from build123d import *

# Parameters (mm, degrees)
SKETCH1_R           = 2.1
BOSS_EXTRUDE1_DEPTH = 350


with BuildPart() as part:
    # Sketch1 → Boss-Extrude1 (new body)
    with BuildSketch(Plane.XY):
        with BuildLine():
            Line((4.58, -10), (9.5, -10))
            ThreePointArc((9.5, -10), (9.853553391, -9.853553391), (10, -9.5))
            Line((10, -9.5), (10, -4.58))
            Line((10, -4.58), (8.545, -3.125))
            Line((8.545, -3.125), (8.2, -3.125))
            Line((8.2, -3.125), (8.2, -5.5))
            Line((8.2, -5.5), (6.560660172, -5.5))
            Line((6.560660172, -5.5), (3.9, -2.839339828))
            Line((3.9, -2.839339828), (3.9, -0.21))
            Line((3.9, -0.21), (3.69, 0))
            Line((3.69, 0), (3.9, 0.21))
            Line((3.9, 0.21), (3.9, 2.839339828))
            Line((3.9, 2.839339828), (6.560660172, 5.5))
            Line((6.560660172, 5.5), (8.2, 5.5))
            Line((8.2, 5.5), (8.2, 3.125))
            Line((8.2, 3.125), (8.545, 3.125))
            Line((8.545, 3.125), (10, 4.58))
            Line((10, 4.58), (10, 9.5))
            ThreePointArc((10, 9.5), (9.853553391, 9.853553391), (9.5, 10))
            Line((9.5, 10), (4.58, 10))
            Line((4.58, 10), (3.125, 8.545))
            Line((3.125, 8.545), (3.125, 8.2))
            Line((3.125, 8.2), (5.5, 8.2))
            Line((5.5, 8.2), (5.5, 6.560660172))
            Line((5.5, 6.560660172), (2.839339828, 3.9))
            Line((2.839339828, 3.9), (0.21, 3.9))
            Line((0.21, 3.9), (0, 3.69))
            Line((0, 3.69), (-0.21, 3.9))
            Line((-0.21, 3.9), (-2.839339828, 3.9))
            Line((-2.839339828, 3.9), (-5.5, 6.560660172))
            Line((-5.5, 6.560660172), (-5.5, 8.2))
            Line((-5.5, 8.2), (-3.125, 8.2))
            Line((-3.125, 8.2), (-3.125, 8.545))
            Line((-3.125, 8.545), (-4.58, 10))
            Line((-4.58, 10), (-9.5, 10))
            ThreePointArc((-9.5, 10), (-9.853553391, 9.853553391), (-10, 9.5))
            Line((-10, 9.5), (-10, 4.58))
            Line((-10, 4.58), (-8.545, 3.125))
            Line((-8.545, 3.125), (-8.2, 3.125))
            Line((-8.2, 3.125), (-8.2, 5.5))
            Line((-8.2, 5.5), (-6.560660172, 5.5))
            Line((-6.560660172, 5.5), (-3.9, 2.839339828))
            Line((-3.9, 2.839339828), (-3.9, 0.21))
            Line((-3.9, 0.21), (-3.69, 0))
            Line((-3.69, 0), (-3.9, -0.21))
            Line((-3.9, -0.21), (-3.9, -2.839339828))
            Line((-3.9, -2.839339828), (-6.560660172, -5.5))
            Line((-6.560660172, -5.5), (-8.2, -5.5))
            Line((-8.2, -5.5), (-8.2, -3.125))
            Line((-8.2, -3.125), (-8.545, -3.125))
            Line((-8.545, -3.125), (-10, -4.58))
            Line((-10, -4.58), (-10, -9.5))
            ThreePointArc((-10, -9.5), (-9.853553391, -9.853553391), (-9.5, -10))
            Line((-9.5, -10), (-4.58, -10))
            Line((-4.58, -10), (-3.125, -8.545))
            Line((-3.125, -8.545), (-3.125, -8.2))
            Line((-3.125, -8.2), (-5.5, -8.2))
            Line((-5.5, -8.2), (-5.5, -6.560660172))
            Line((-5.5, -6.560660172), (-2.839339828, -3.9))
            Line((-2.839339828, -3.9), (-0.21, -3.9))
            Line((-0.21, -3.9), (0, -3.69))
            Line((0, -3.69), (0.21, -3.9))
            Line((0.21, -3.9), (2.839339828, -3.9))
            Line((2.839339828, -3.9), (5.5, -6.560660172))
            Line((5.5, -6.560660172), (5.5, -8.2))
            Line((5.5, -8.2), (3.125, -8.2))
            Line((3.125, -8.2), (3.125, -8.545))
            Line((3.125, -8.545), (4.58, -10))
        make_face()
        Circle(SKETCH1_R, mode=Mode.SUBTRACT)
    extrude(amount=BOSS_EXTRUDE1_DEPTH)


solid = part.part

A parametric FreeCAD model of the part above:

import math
import FreeCAD as App
import Part
import Sketcher
Q = App.Units.Quantity

doc = App.newDocument("Part")
body = doc.addObject("PartDesign::Body", "Body")

# Sketch on XY plane
sketch1 = body.newObject("Sketcher::SketchObject", "Sketch")
sketch1.AttachmentSupport = (doc.getObject("XY_Plane"), [""])
sketch1.MapMode = "FlatFace"
sketch1.addGeometry([
    Part.LineSegment(App.Vector(4.58, -10, 0), App.Vector(9.5, -10, 0)),  # 0
    Part.ArcOfCircle(Part.Circle(App.Vector(9.5, -9.5, 0), App.Vector(0, 0, 1), 0.5), math.radians(-90), math.radians(0)),  # 1
    Part.LineSegment(App.Vector(10, -9.5, 0), App.Vector(10, -4.58, 0)),  # 2
    Part.LineSegment(App.Vector(10, -4.58, 0), App.Vector(8.545, -3.125, 0)),  # 3
    Part.LineSegment(App.Vector(8.545, -3.125, 0), App.Vector(8.2, -3.125, 0)),  # 4
    Part.LineSegment(App.Vector(8.2, -3.125, 0), App.Vector(8.2, -5.5, 0)),  # 5
    Part.LineSegment(App.Vector(8.2, -5.5, 0), App.Vector(6.56066, -5.5, 0)),  # 6
    Part.LineSegment(App.Vector(6.56066, -5.5, 0), App.Vector(3.9, -2.83934, 0)),  # 7
    Part.LineSegment(App.Vector(3.9, -2.83934, 0), App.Vector(3.9, -0.21, 0)),  # 8
    Part.LineSegment(App.Vector(3.9, -0.21, 0), App.Vector(3.69, 0, 0)),  # 9
    Part.LineSegment(App.Vector(3.69, 0, 0), App.Vector(3.9, 0.21, 0)),  # 10
    Part.LineSegment(App.Vector(3.9, 0.21, 0), App.Vector(3.9, 2.83934, 0)),  # 11
    Part.LineSegment(App.Vector(3.9, 2.83934, 0), App.Vector(6.56066, 5.5, 0)),  # 12
    Part.LineSegment(App.Vector(6.56066, 5.5, 0), App.Vector(8.2, 5.5, 0)),  # 13
    Part.LineSegment(App.Vector(8.2, 5.5, 0), App.Vector(8.2, 3.125, 0)),  # 14
    Part.LineSegment(App.Vector(8.2, 3.125, 0), App.Vector(8.545, 3.125, 0)),  # 15
    Part.LineSegment(App.Vector(8.545, 3.125, 0), App.Vector(10, 4.58, 0)),  # 16
    Part.LineSegment(App.Vector(10, 4.58, 0), App.Vector(10, 9.5, 0)),  # 17
    Part.ArcOfCircle(Part.Circle(App.Vector(9.5, 9.5, 0), App.Vector(0, 0, 1), 0.5), math.radians(0), math.radians(90)),  # 18
    Part.LineSegment(App.Vector(9.5, 10, 0), App.Vector(4.58, 10, 0)),  # 19
    Part.LineSegment(App.Vector(4.58, 10, 0), App.Vector(3.125, 8.545, 0)),  # 20
    Part.LineSegment(App.Vector(3.125, 8.545, 0), App.Vector(3.125, 8.2, 0)),  # 21
    Part.LineSegment(App.Vector(3.125, 8.2, 0), App.Vector(5.5, 8.2, 0)),  # 22
    Part.LineSegment(App.Vector(5.5, 8.2, 0), App.Vector(5.5, 6.56066, 0)),  # 23
    Part.LineSegment(App.Vector(5.5, 6.56066, 0), App.Vector(2.83934, 3.9, 0)),  # 24
    Part.LineSegment(App.Vector(2.83934, 3.9, 0), App.Vector(0.21, 3.9, 0)),  # 25
    Part.LineSegment(App.Vector(0.21, 3.9, 0), App.Vector(0, 3.69, 0)),  # 26
    Part.LineSegment(App.Vector(0, 3.69, 0), App.Vector(-0.21, 3.9, 0)),  # 27
    Part.LineSegment(App.Vector(-0.21, 3.9, 0), App.Vector(-2.83934, 3.9, 0)),  # 28
    Part.LineSegment(App.Vector(-2.83934, 3.9, 0), App.Vector(-5.5, 6.56066, 0)),  # 29
    Part.LineSegment(App.Vector(-5.5, 6.56066, 0), App.Vector(-5.5, 8.2, 0)),  # 30
    Part.LineSegment(App.Vector(-5.5, 8.2, 0), App.Vector(-3.125, 8.2, 0)),  # 31
    Part.LineSegment(App.Vector(-3.125, 8.2, 0), App.Vector(-3.125, 8.545, 0)),  # 32
    Part.LineSegment(App.Vector(-3.125, 8.545, 0), App.Vector(-4.58, 10, 0)),  # 33
    Part.LineSegment(App.Vector(-4.58, 10, 0), App.Vector(-9.5, 10, 0)),  # 34
    Part.ArcOfCircle(Part.Circle(App.Vector(-9.5, 9.5, 0), App.Vector(0, 0, 1), 0.5), math.radians(90), math.radians(180)),  # 35
    Part.LineSegment(App.Vector(-10, 9.5, 0), App.Vector(-10, 4.58, 0)),  # 36
    Part.LineSegment(App.Vector(-10, 4.58, 0), App.Vector(-8.545, 3.125, 0)),  # 37
    Part.LineSegment(App.Vector(-8.545, 3.125, 0), App.Vector(-8.2, 3.125, 0)),  # 38
    Part.LineSegment(App.Vector(-8.2, 3.125, 0), App.Vector(-8.2, 5.5, 0)),  # 39
    Part.LineSegment(App.Vector(-8.2, 5.5, 0), App.Vector(-6.56066, 5.5, 0)),  # 40
    Part.LineSegment(App.Vector(-6.56066, 5.5, 0), App.Vector(-3.9, 2.83934, 0)),  # 41
    Part.LineSegment(App.Vector(-3.9, 2.83934, 0), App.Vector(-3.9, 0.21, 0)),  # 42
    Part.LineSegment(App.Vector(-3.9, 0.21, 0), App.Vector(-3.69, 0, 0)),  # 43
    Part.LineSegment(App.Vector(-3.69, 0, 0), App.Vector(-3.9, -0.21, 0)),  # 44
    Part.LineSegment(App.Vector(-3.9, -0.21, 0), App.Vector(-3.9, -2.83934, 0)),  # 45
    Part.LineSegment(App.Vector(-3.9, -2.83934, 0), App.Vector(-6.56066, -5.5, 0)),  # 46
    Part.LineSegment(App.Vector(-6.56066, -5.5, 0), App.Vector(-8.2, -5.5, 0)),  # 47
    Part.LineSegment(App.Vector(-8.2, -5.5, 0), App.Vector(-8.2, -3.125, 0)),  # 48
    Part.LineSegment(App.Vector(-8.2, -3.125, 0), App.Vector(-8.545, -3.125, 0)),  # 49
    Part.LineSegment(App.Vector(-8.545, -3.125, 0), App.Vector(-10, -4.58, 0)),  # 50
    Part.LineSegment(App.Vector(-10, -4.58, 0), App.Vector(-10, -9.5, 0)),  # 51
    Part.ArcOfCircle(Part.Circle(App.Vector(-9.5, -9.5, 0), App.Vector(0, 0, 1), 0.5), math.radians(180), math.radians(270)),  # 52
    Part.LineSegment(App.Vector(-9.5, -10, 0), App.Vector(-4.58, -10, 0)),  # 53
    Part.LineSegment(App.Vector(-4.58, -10, 0), App.Vector(-3.125, -8.545, 0)),  # 54
    Part.LineSegment(App.Vector(-3.125, -8.545, 0), App.Vector(-3.125, -8.2, 0)),  # 55
    Part.LineSegment(App.Vector(-3.125, -8.2, 0), App.Vector(-5.5, -8.2, 0)),  # 56
    Part.LineSegment(App.Vector(-5.5, -8.2, 0), App.Vector(-5.5, -6.56066, 0)),  # 57
    Part.LineSegment(App.Vector(-5.5, -6.56066, 0), App.Vector(-2.83934, -3.9, 0)),  # 58
    Part.LineSegment(App.Vector(-2.83934, -3.9, 0), App.Vector(-0.21, -3.9, 0)),  # 59
    Part.LineSegment(App.Vector(-0.21, -3.9, 0), App.Vector(0, -3.69, 0)),  # 60
    Part.LineSegment(App.Vector(0, -3.69, 0), App.Vector(0.21, -3.9, 0)),  # 61
    Part.LineSegment(App.Vector(0.21, -3.9, 0), App.Vector(2.83934, -3.9, 0)),  # 62
    Part.LineSegment(App.Vector(2.83934, -3.9, 0), App.Vector(5.5, -6.56066, 0)),  # 63
    Part.LineSegment(App.Vector(5.5, -6.56066, 0), App.Vector(5.5, -8.2, 0)),  # 64
    Part.LineSegment(App.Vector(5.5, -8.2, 0), App.Vector(3.125, -8.2, 0)),  # 65
    Part.LineSegment(App.Vector(3.125, -8.2, 0), App.Vector(3.125, -8.545, 0)),  # 66
    Part.LineSegment(App.Vector(3.125, -8.545, 0), App.Vector(4.58, -10, 0)),  # 67
    Part.Circle(App.Vector(0, 0, 0), App.Vector(0, 0, 1), 2.1),  # 68
], False)
sketch1.addConstraint([
    Sketcher.Constraint("Tangent", 0, 2, 1, 1),
    Sketcher.Constraint("Tangent", 1, 2, 2, 1),
    Sketcher.Constraint("Coincident", 2, 2, 3, 1),
    Sketcher.Constraint("Coincident", 3, 2, 4, 1),
    Sketcher.Constraint("Coincident", 4, 2, 5, 1),
    Sketcher.Constraint("Coincident", 5, 2, 6, 1),
    Sketcher.Constraint("Coincident", 6, 2, 7, 1),
    Sketcher.Constraint("Coincident", 7, 2, 8, 1),
    Sketcher.Constraint("Coincident", 8, 2, 9, 1),
    Sketcher.Constraint("Coincident", 9, 2, 10, 1),
    Sketcher.Constraint("Coincident", 10, 2, 11, 1),
    Sketcher.Constraint("Coincident", 11, 2, 12, 1),
    Sketcher.Constraint("Coincident", 12, 2, 13, 1),
    Sketcher.Constraint("Coincident", 13, 2, 14, 1),
    Sketcher.Constraint("Coincident", 14, 2, 15, 1),
    Sketcher.Constraint("Coincident", 15, 2, 16, 1),
    Sketcher.Constraint("Coincident", 16, 2, 17, 1),
    Sketcher.Constraint("Tangent", 17, 2, 18, 1),
    Sketcher.Constraint("Tangent", 18, 2, 19, 1),
    Sketcher.Constraint("Coincident", 19, 2, 20, 1),
    Sketcher.Constraint("Coincident", 20, 2, 21, 1),
    Sketcher.Constraint("Coincident", 21, 2, 22, 1),
    Sketcher.Constraint("Coincident", 22, 2, 23, 1),
    Sketcher.Constraint("Coincident", 23, 2, 24, 1),
    Sketcher.Constraint("Coincident", 24, 2, 25, 1),
    Sketcher.Constraint("Coincident", 25, 2, 26, 1),
    Sketcher.Constraint("Coincident", 26, 2, 27, 1),
    Sketcher.Constraint("Coincident", 27, 2, 28, 1),
    Sketcher.Constraint("Coincident", 28, 2, 29, 1),
    Sketcher.Constraint("Coincident", 29, 2, 30, 1),
    Sketcher.Constraint("Coincident", 30, 2, 31, 1),
    Sketcher.Constraint("Coincident", 31, 2, 32, 1),
    Sketcher.Constraint("Coincident", 32, 2, 33, 1),
    Sketcher.Constraint("Coincident", 33, 2, 34, 1),
    Sketcher.Constraint("Tangent", 34, 2, 35, 1),
    Sketcher.Constraint("Tangent", 35, 2, 36, 1),
    Sketcher.Constraint("Coincident", 36, 2, 37, 1),
    Sketcher.Constraint("Coincident", 37, 2, 38, 1),
    Sketcher.Constraint("Coincident", 38, 2, 39, 1),
    Sketcher.Constraint("Coincident", 39, 2, 40, 1),
    Sketcher.Constraint("Coincident", 40, 2, 41, 1),
    Sketcher.Constraint("Coincident", 41, 2, 42, 1),
    Sketcher.Constraint("Coincident", 42, 2, 43, 1),
    Sketcher.Constraint("Coincident", 43, 2, 44, 1),
    Sketcher.Constraint("Coincident", 44, 2, 45, 1),
    Sketcher.Constraint("Coincident", 45, 2, 46, 1),
    Sketcher.Constraint("Coincident", 46, 2, 47, 1),
    Sketcher.Constraint("Coincident", 47, 2, 48, 1),
    Sketcher.Constraint("Coincident", 48, 2, 49, 1),
    Sketcher.Constraint("Coincident", 49, 2, 50, 1),
    Sketcher.Constraint("Coincident", 50, 2, 51, 1),
    Sketcher.Constraint("Tangent", 51, 2, 52, 1),
    Sketcher.Constraint("Tangent", 52, 2, 53, 1),
    Sketcher.Constraint("Coincident", 53, 2, 54, 1),
    Sketcher.Constraint("Coincident", 54, 2, 55, 1),
    Sketcher.Constraint("Coincident", 55, 2, 56, 1),
    Sketcher.Constraint("Coincident", 56, 2, 57, 1),
    Sketcher.Constraint("Coincident", 57, 2, 58, 1),
    Sketcher.Constraint("Coincident", 58, 2, 59, 1),
    Sketcher.Constraint("Coincident", 59, 2, 60, 1),
    Sketcher.Constraint("Coincident", 60, 2, 61, 1),
    Sketcher.Constraint("Coincident", 61, 2, 62, 1),
    Sketcher.Constraint("Coincident", 62, 2, 63, 1),
    Sketcher.Constraint("Coincident", 63, 2, 64, 1),
    Sketcher.Constraint("Coincident", 64, 2, 65, 1),
    Sketcher.Constraint("Coincident", 65, 2, 66, 1),
    Sketcher.Constraint("Coincident", 66, 2, 67, 1),
    Sketcher.Constraint("Coincident", 67, 2, 0, 1),
    Sketcher.Constraint("Horizontal", 0),
    Sketcher.Constraint("Vertical", 2),
    Sketcher.Constraint("Horizontal", 4),
    Sketcher.Constraint("Vertical", 5),
    Sketcher.Constraint("Horizontal", 6),
    Sketcher.Constraint("Vertical", 8),
    Sketcher.Constraint("Vertical", 11),
    Sketcher.Constraint("Horizontal", 13),
    Sketcher.Constraint("Vertical", 14),
    Sketcher.Constraint("Horizontal", 15),
    Sketcher.Constraint("Vertical", 17),
    Sketcher.Constraint("Horizontal", 19),
    Sketcher.Constraint("Vertical", 21),
    Sketcher.Constraint("Horizontal", 22),
    Sketcher.Constraint("Vertical", 23),
    Sketcher.Constraint("Horizontal", 25),
    Sketcher.Constraint("Horizontal", 28),
    Sketcher.Constraint("Vertical", 30),
    Sketcher.Constraint("Horizontal", 31),
    Sketcher.Constraint("Vertical", 32),
    Sketcher.Constraint("Horizontal", 34),
    Sketcher.Constraint("Vertical", 36),
    Sketcher.Constraint("Horizontal", 38),
    Sketcher.Constraint("Vertical", 39),
    Sketcher.Constraint("Horizontal", 40),
    Sketcher.Constraint("Vertical", 42),
    Sketcher.Constraint("Vertical", 45),
    Sketcher.Constraint("Horizontal", 47),
    Sketcher.Constraint("Vertical", 48),
    Sketcher.Constraint("Horizontal", 49),
    Sketcher.Constraint("Vertical", 51),
    Sketcher.Constraint("Horizontal", 53),
    Sketcher.Constraint("Vertical", 55),
    Sketcher.Constraint("Horizontal", 56),
    Sketcher.Constraint("Vertical", 57),
    Sketcher.Constraint("Horizontal", 59),
    Sketcher.Constraint("Horizontal", 62),
    Sketcher.Constraint("Vertical", 64),
    Sketcher.Constraint("Horizontal", 65),
    Sketcher.Constraint("Vertical", 66),
    Sketcher.Constraint("Coincident", 68, 3, -1, 1),
    Sketcher.Constraint("Equal", 1, 18),
    Sketcher.Constraint("Equal", 18, 35),
    Sketcher.Constraint("Equal", 35, 52),
    Sketcher.Constraint("Symmetric", 1, 3, 35, 3, -1, 1),
    Sketcher.Constraint("Symmetric", 18, 3, 52, 3, -1, 1),
    Sketcher.Constraint("Symmetric", 3, 2, 37, 2, -1, 1),
    Sketcher.Constraint("Symmetric", 5, 2, 39, 2, -1, 1),
    Sketcher.Constraint("Symmetric", 7, 2, 41, 2, -1, 1),
    Sketcher.Constraint("Symmetric", 9, 2, 43, 2, -1, 1),
    Sketcher.Constraint("Symmetric", 10, 2, 44, 2, -1, 1),
    Sketcher.Constraint("Symmetric", 12, 2, 46, 2, -1, 1),
    Sketcher.Constraint("Symmetric", 14, 2, 48, 2, -1, 1),
    Sketcher.Constraint("Symmetric", 20, 2, 54, 2, -1, 1),
    Sketcher.Constraint("Symmetric", 22, 2, 56, 2, -1, 1),
    Sketcher.Constraint("Symmetric", 24, 2, 58, 2, -1, 1),
    Sketcher.Constraint("Symmetric", 26, 2, 60, 2, -1, 1),
    Sketcher.Constraint("Symmetric", 27, 2, 61, 2, -1, 1),
    Sketcher.Constraint("Symmetric", 29, 2, 63, 2, -1, 1),
    Sketcher.Constraint("Symmetric", 31, 2, 65, 2, -1, 1),
    Sketcher.Constraint("Symmetric", 18, 3, 35, 3, -2),
    Sketcher.Constraint("Symmetric", 25, 2, 27, 2, -2),
    Sketcher.Constraint("Symmetric", 23, 2, 29, 2, -2),
    Sketcher.Constraint("Symmetric", 21, 2, 31, 2, -2),
    Sketcher.Constraint("Symmetric", 15, 2, 37, 2, -2),
    Sketcher.Constraint("Symmetric", 13, 2, 39, 2, -2),
    Sketcher.Constraint("Symmetric", 11, 2, 41, 2, -2),
    Sketcher.Constraint("PointOnObject", 9, 2, -1),
    Sketcher.Constraint("PointOnObject", 26, 2, -2),
    Sketcher.Constraint("Parallel", 3, 7),
    Sketcher.Constraint("Parallel", 7, 9),
    Sketcher.Constraint("Perpendicular", 9, 10),
    Sketcher.Constraint("Parallel", 10, 12),
    Sketcher.Constraint("Parallel", 12, 16),
    Sketcher.Constraint("Parallel", 16, 20),
    Sketcher.Constraint("Parallel", 20, 24),
    Sketcher.Constraint("Parallel", 24, 26),
    Sketcher.Constraint("Perpendicular", 26, 27),
    Sketcher.Constraint("Parallel", 27, 29),
    Sketcher.Constraint("Parallel", 29, 33),
    Sketcher.Constraint("Parallel", 33, 37),
    Sketcher.Constraint("Parallel", 37, 41),
    Sketcher.Constraint("Parallel", 41, 43),
    Sketcher.Constraint("Parallel", 44, 46),
    Sketcher.Constraint("Parallel", 46, 50),
    Sketcher.Constraint("Parallel", 50, 54),
    Sketcher.Constraint("Parallel", 54, 58),
    Sketcher.Constraint("Parallel", 58, 60),
    Sketcher.Constraint("Parallel", 61, 63),
    Sketcher.Constraint("Parallel", 63, 67),
    Sketcher.Constraint("Horizontal", 20, 2, 32, 2),
    Sketcher.Constraint("Horizontal", 2, 2, 50, 2),
    Sketcher.Constraint("Horizontal", 54, 2, 66, 2),
    Sketcher.Constraint("Equal", 53, 2),
    Sketcher.Constraint("Equal", 65, 5),
    Sketcher.Constraint("Equal", 62, 8),
    Sketcher.Constraint("Equal", 49, 21),
    Sketcher.Constraint("Equal", 47, 23),
    Sketcher.Constraint("Equal", 16, 20),
    Sketcher.Constraint("Equal", 12, 24),
    Sketcher.Constraint("Equal", 10, 26),
    Sketcher.Constraint("Diameter", 68, Q("4.2 mm")),
    Sketcher.Constraint("Radius", 1, Q("0.5 mm")),
    Sketcher.Constraint("DistanceY", 0, 2, -1, 1, Q("10 mm")),
    Sketcher.Constraint("DistanceX", 0, 1, 0, 2, Q("4.92 mm")),
    Sketcher.Constraint("DistanceX", -1, 1, 4, 2, Q("8.2 mm")),
    Sketcher.Constraint("DistanceY", 5, 2, -1, 1, Q("5.5 mm")),
    Sketcher.Constraint("DistanceX", -1, 1, 7, 2, Q("3.9 mm")),
    Sketcher.Constraint("DistanceX", 4, 2, 4, 1, Q("0.345 mm")),
    Sketcher.Constraint("DistanceY", 8, 2, -1, 1, Q("0.21 mm")),
    Sketcher.Constraint("DistanceX", 6, 2, 6, 1, Q("1.63934 mm")),
])
pad1 = body.newObject("PartDesign::Pad", "Pad")
pad1.Profile = sketch1
pad1.Length = 350

doc.recompute()
